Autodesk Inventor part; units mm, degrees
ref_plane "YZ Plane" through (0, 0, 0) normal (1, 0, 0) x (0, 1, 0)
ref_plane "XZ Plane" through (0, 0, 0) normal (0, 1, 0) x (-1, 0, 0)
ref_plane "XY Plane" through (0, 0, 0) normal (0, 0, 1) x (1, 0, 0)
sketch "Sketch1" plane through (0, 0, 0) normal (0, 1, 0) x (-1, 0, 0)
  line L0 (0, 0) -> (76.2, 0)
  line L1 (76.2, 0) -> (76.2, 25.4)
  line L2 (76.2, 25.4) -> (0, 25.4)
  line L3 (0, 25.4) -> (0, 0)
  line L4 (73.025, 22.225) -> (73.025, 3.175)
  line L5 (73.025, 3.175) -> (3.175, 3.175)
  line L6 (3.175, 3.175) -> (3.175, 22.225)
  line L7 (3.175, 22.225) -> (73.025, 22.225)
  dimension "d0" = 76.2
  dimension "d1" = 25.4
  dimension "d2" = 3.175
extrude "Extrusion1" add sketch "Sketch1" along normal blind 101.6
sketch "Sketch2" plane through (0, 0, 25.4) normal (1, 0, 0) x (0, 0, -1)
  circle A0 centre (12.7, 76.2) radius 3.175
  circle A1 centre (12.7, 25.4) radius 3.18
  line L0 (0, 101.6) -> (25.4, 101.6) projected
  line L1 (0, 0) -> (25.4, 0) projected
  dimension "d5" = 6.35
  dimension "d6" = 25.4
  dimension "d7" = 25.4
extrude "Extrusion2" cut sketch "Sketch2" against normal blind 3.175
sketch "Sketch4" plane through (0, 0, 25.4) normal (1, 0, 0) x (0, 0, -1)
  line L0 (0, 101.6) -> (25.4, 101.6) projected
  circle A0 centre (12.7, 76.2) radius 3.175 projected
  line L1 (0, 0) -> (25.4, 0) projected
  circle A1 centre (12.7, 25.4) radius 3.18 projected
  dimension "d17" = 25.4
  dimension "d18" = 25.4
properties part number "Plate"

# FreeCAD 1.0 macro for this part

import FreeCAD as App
import Part
import Sketcher
from FreeCAD import Vector
Q = App.Units.Quantity


def add_polygon(sketch, points):
    """Adds a closed chain of lines whose ends are joined by coincident constraints."""
    first, n = sketch.GeometryCount, len(points)
    for a, b in zip(points, points[1:] + points[:1]):
        sketch.addGeometry(Part.LineSegment(App.Vector(*a, 0), App.Vector(*b, 0)), False)
    for i in range(n):
        sketch.addConstraint(Sketcher.Constraint("Coincident", first + i, 2, first + (i + 1) % n, 1))

doc = App.newDocument("Part")
params = doc.addObject("Spreadsheet::Sheet", "Params")
for row, (alias, value) in enumerate([
    ("sketch1_width", "3 in"),
    ("sketch1_height", "1 in"),
    ("pad1_length", "4 in"),
    ("sketch2_diameter", "0.25 in"),
    ("pocket1_length", "0.125 in"),
], start=1):
    params.set(f"A{row}", alias)
    params.set(f"B{row}", "=" + value)
    params.setAlias(f"B{row}", alias)

body = doc.addObject("PartDesign::Body", "Body")

# Sketch on XZ plane
sketch1 = body.newObject("Sketcher::SketchObject", "Sketch")
sketch1.AttachmentSupport = (doc.getObject("XZ_Plane"), [""])
sketch1.MapMode = "FlatFace"
add_polygon(sketch1, [(0, 25), (0, 0), (-76, 0), (-76, 25)])  # lines 0-3
add_polygon(sketch1, [(-3, 22), (-73, 22), (-73, 3), (-3, 3)])  # lines 4-7
sketch1.addConstraint(Sketcher.Constraint("Vertical", 0))
sketch1.addConstraint(Sketcher.Constraint("Horizontal", 1))
sketch1.addConstraint(Sketcher.Constraint("Vertical", 2))
sketch1.addConstraint(Sketcher.Constraint("Horizontal", 3))
sketch1.addConstraint(Sketcher.Constraint("Horizontal", 4))
sketch1.addConstraint(Sketcher.Constraint("Vertical", 5))
sketch1.addConstraint(Sketcher.Constraint("Horizontal", 6))
sketch1.addConstraint(Sketcher.Constraint("Vertical", 7))
sketch1.addConstraint(Sketcher.Constraint("Coincident", 0, 2, -1, 1))
sketch1.addConstraint(Sketcher.Constraint("DistanceX", 1, 2, 1, 1, Q("3 in")))
sketch1.addConstraint(Sketcher.Constraint("DistanceY", 0, 2, 0, 1, Q("1 in")))
sketch1.addConstraint(Sketcher.Constraint("DistanceY", -1, 1, 5, 2, Q("0.125 in")))
sketch1.addConstraint(Sketcher.Constraint("DistanceX", 6, 2, -1, 1, Q("0.125 in")))
sketch1.addConstraint(Sketcher.Constraint("DistanceX", 2, 2, 4, 2, Q("0.125 in")))
sketch1.addConstraint(Sketcher.Constraint("DistanceY", 4, 2, 2, 2, Q("0.125 in")))
sketch1.setExpression("Constraints[17]", "Params.sketch1_width")
sketch1.setExpression("Constraints[18]", "Params.sketch1_height")
pad1 = body.newObject("PartDesign::Pad", "Pad")
pad1.Profile = sketch1
pad1.setExpression("Length", "Params.pad1_length")
pad1.Reversed = True

# Sketch on YZ plane
sketch2 = body.newObject("Sketcher::SketchObject", "Sketch001")
sketch2.AttachmentSupport = (doc.getObject("YZ_Plane"), [""])
sketch2.MapMode = "FlatFace"
sketch2.addGeometry(Part.Circle(Vector(76.2, 12.7, 0), Vector(0, 0, 1), 3.2), False)
sketch2.addGeometry(Part.Circle(Vector(25.4, 12.7, 0), Vector(0, 0, 1), 3.2), False)
sketch2.addConstraint(Sketcher.Constraint("Horizontal", 0, 3, 1, 3))
sketch2.addConstraint(Sketcher.Constraint("Diameter", 0, Q("0.25 in")))
sketch2.addConstraint(Sketcher.Constraint("DistanceX", -1, 1, 1, 3, Q("1 in")))
sketch2.addConstraint(Sketcher.Constraint("DistanceX", -1, 1, 0, 3, Q("3 in")))
sketch2.addConstraint(Sketcher.Constraint("Diameter", 1, Q("0.2504 in")))
sketch2.addConstraint(Sketcher.Constraint("DistanceY", -1, 1, 0, 3, Q("0.5 in")))
sketch2.setExpression("Constraints[1]", "Params.sketch2_diameter")
pocket1 = body.newObject("PartDesign::Pocket", "Pocket")
pocket1.Profile = sketch2
pocket1.setExpression("Length", "Params.pocket1_length")

doc.recompute()
